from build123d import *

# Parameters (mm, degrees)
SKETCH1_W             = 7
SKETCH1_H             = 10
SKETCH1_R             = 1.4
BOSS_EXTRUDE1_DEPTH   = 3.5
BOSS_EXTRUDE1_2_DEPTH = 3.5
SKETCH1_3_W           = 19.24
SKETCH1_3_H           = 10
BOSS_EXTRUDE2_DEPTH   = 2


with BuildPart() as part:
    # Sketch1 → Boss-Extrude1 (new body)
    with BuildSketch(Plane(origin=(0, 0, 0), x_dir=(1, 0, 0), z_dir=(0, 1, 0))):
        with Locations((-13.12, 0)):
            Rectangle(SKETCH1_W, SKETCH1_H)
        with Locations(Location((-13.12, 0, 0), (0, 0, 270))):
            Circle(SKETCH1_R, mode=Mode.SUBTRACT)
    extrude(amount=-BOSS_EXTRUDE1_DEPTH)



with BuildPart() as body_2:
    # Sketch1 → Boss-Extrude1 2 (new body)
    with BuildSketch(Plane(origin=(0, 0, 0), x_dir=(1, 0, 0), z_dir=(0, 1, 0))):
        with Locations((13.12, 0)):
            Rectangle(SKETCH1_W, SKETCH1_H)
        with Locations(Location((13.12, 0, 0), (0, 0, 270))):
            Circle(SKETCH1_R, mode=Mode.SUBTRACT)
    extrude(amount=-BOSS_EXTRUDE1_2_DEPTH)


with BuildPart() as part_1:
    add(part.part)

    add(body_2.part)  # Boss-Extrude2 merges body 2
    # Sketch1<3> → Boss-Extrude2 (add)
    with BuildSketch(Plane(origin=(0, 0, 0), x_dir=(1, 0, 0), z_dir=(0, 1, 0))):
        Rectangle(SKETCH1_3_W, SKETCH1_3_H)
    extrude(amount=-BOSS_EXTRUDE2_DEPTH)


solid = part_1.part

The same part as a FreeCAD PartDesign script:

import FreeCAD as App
import Part
import Sketcher

V = App.Vector
Q = App.Units.Quantity

doc = App.newDocument("Part")
body = doc.addObject("PartDesign::Body", "Body")

sketch1 = body.newObject("Sketcher::SketchObject", "Sketch")
sketch1.AttachmentSupport = (doc.getObject("XZ_Plane"), [""])
sketch1.MapMode = "FlatFace"
sketch1.addGeometry([
    Part.LineSegment(V(-16.62, -5, 0), V(-16.62, 5, 0)),
    Part.LineSegment(V(-16.62, 5, 0), V(-9.62, 5, 0)),
    Part.LineSegment(V(-9.62, 5, 0), V(-9.62, -5, 0)),
    Part.LineSegment(V(-9.62, -5, 0), V(-16.62, -5, 0)),
    Part.Circle(V(-13.12, 0, 0), V(0, 0, 1), 1.4),
], False)
sketch1.addConstraint([
    Sketcher.Constraint("Coincident", 0, 2, 1, 1),
    Sketcher.Constraint("Coincident", 1, 2, 2, 1),
    Sketcher.Constraint("Coincident", 2, 2, 3, 1),
    Sketcher.Constraint("Coincident", 3, 2, 0, 1),
    Sketcher.Constraint("Vertical", 0),
    Sketcher.Constraint("Horizontal", 1),
    Sketcher.Constraint("Vertical", 2),
    Sketcher.Constraint("Horizontal", 3),
    Sketcher.Constraint("PointOnObject", 4, 3, -1),
    Sketcher.Constraint("Diameter", 4, Q("2.8 mm")),
    Sketcher.Constraint("DistanceX", 1, 1, 1, 2, Q("7 mm")),
    Sketcher.Constraint("DistanceY", 0, 1, 0, 2, Q("10 mm")),
    Sketcher.Constraint("DistanceY", -1, 1, 0, 2, Q("5 mm")),
    Sketcher.Constraint("DistanceX", 0, 2, 4, 3, Q("3.5 mm")),
    Sketcher.Constraint("DistanceX", 4, 3, -1, 1, Q("13.12 mm")),
])
pad1 = body.newObject("PartDesign::Pad", "Pad")
pad1.Profile = sketch1
pad1.Length = 3.5
body2 = doc.addObject("PartDesign::Body", "Body001")

sketch2 = body2.newObject("Sketcher::SketchObject", "Sketch001")
sketch2.AttachmentSupport = (doc.getObject("XZ_Plane001"), [""])
sketch2.MapMode = "FlatFace"
sketch2.addGeometry([
    Part.LineSegment(V(9.62, -5, 0), V(9.62, 5, 0)),
    Part.LineSegment(V(9.62, 5, 0), V(16.62, 5, 0)),
    Part.LineSegment(V(16.62, 5, 0), V(16.62, -5, 0)),
    Part.LineSegment(V(16.62, -5, 0), V(9.62, -5, 0)),
    Part.Circle(V(13.12, 0, 0), V(0, 0, 1), 1.4),
], False)
sketch2.addConstraint([
    Sketcher.Constraint("Coincident", 0, 2, 1, 1),
    Sketcher.Constraint("Coincident", 1, 2, 2, 1),
    Sketcher.Constraint("Coincident", 2, 2, 3, 1),
    Sketcher.Constraint("Coincident", 3, 2, 0, 1),
    Sketcher.Constraint("Vertical", 0),
    Sketcher.Constraint("Horizontal", 1),
    Sketcher.Constraint("Vertical", 2),
    Sketcher.Constraint("Horizontal", 3),
    Sketcher.Constraint("PointOnObject", 4, 3, -1),
    Sketcher.Constraint("Diameter", 4, Q("2.8 mm")),
    Sketcher.Constraint("DistanceX", 1, 1, 1, 2, Q("7 mm")),
    Sketcher.Constraint("DistanceY", 0, 1, 0, 2, Q("10 mm")),
    Sketcher.Constraint("DistanceY", -1, 1, 0, 2, Q("5 mm")),
    Sketcher.Constraint("DistanceX", 0, 2, 4, 3, Q("3.5 mm")),
    Sketcher.Constraint("DistanceX", -1, 1, 4, 3, Q("13.12 mm")),
])
pad2 = body2.newObject("PartDesign::Pad", "Pad001")
pad2.Profile = sketch2
pad2.Length = 3.5
body.AllowCompound = True
doc.recompute()

boolean = body.newObject("PartDesign::Boolean", "Boolean")
boolean.Type = "Fuse"
boolean.addObjects([body2])

sketch3 = body.newObject("Sketcher::SketchObject", "Sketch002")
sketch3.AttachmentSupport = (doc.getObject("XZ_Plane"), [""])
sketch3.MapMode = "FlatFace"
sketch3.addGeometry([
    Part.LineSegment(V(-9.62, -5, 0), V(-9.62, 5, 0)),
    Part.LineSegment(V(-9.62, 5, 0), V(9.62, 5, 0)),
    Part.LineSegment(V(9.62, 5, 0), V(9.62, -5, 0)),
    Part.LineSegment(V(9.62, -5, 0), V(-9.62, -5, 0)),
], False)
sketch3.addConstraint([
    Sketcher.Constraint("Coincident", 0, 2, 1, 1),
    Sketcher.Constraint("Coincident", 1, 2, 2, 1),
    Sketcher.Constraint("Coincident", 2, 2, 3, 1),
    Sketcher.Constraint("Coincident", 3, 2, 0, 1),
    Sketcher.Constraint("Vertical", 0),
    Sketcher.Constraint("Horizontal", 1),
    Sketcher.Constraint("Vertical", 2),
    Sketcher.Constraint("Horizontal", 3),
    Sketcher.Constraint("Symmetric", 0, 2, 2, 2, -1, 1),
    Sketcher.Constraint("DistanceY", 0, 1, 0, 2, Q("10 mm")),
    Sketcher.Constraint("DistanceX", 1, 1, 1, 2, Q("19.24 mm")),
])
pad3 = body.newObject("PartDesign::Pad", "Pad002")
pad3.Profile = sketch3
pad3.Length = 2

doc.recompute()
